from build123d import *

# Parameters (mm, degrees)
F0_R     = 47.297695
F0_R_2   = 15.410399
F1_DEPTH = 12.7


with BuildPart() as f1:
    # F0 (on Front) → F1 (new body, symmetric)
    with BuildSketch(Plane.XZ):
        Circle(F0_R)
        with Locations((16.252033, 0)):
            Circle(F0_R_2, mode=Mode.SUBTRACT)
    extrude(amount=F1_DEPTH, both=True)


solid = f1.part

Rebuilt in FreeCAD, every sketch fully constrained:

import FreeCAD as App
import Part
import Sketcher
from FreeCAD import Vector
Q = App.Units.Quantity

doc = App.newDocument("Part")
body = doc.addObject("PartDesign::Body", "Body")

# Sketch on XZ plane
sketch1 = body.newObject("Sketcher::SketchObject", "Sketch")
sketch1.AttachmentSupport = (doc.getObject("XZ_Plane"), [""])
sketch1.MapMode = "FlatFace"
sketch1.addGeometry([
    Part.Circle(Vector(0, 0, 0), Vector(0, 0, 1), 47),
    Part.Circle(Vector(16, 0, 0), Vector(0, 0, 1), 15),
], False)
sketch1.addConstraint([
    Sketcher.Constraint("Coincident", 0, 3, -1, 1),
    Sketcher.Constraint("PointOnObject", 1, 3, -1),
    Sketcher.Constraint("Diameter", 1, 30.820798),
    Sketcher.Constraint("Diameter", 0, 94.59539),
    Sketcher.Constraint("DistanceX", -1, 1, 1, 3, 16.252033),
])
pad1 = body.newObject("PartDesign::Pad", "Pad")
pad1.Profile = sketch1
pad1.Length = Q("1 in")
pad1.Midplane = True

doc.recompute()
